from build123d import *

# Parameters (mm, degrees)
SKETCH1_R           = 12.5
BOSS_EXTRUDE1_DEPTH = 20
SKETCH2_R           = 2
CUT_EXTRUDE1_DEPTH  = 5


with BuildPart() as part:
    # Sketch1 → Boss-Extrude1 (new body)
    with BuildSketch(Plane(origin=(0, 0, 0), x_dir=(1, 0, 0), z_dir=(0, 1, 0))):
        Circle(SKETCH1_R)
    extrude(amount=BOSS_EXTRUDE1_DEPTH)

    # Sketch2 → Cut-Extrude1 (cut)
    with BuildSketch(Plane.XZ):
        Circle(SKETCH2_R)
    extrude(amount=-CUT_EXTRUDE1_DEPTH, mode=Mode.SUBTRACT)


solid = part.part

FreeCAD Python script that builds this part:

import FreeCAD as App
import Part
import Sketcher
from FreeCAD import Vector

doc = App.newDocument("Part")
params = doc.addObject("Spreadsheet::Sheet", "Params")
for row, (alias, value) in enumerate([
    ("sketch1_diameter", "25 mm"),
    ("pad1_length", "20 mm"),
    ("sketch2_diameter", "4 mm"),
    ("pocket1_length", "5 mm"),
], start=1):
    params.set(f"A{row}", alias)
    params.set(f"B{row}", "=" + value)
    params.setAlias(f"B{row}", alias)

body = doc.addObject("PartDesign::Body", "Body")

# Sketch on XZ plane
sketch1 = doc.addObject("Sketcher::SketchObject", "Sketch")
body.addObject(sketch1)
sketch1.AttachmentSupport = (doc.XZ_Plane, [""])
sketch1.MapMode = "FlatFace"
sketch1.addGeometry(Part.Circle(Vector(0, 0, 0), Vector(0, 0, 1), 12.5), False)
sketch1.addConstraint([
    Sketcher.Constraint("Coincident", 0, 3, -1, 1),
    Sketcher.Constraint("Diameter", 0, 25.0),
])
sketch1.setExpression("Constraints[1]", "Params.sketch1_diameter")
pad1 = doc.addObject("PartDesign::Pad", "Pad")
body.addObject(pad1)
pad1.Profile = sketch1
pad1.setExpression("Length", "Params.pad1_length")
pad1.Reversed = True

# Sketch on XZ plane
sketch2 = doc.addObject("Sketcher::SketchObject", "Sketch001")
body.addObject(sketch2)
sketch2.AttachmentSupport = (doc.XZ_Plane, [""])
sketch2.MapMode = "FlatFace"
sketch2.addGeometry(Part.Circle(Vector(0, 0, 0), Vector(0, 0, 1), 2), False)
sketch2.addConstraint([
    Sketcher.Constraint("Coincident", 0, 3, -1, 1),
    Sketcher.Constraint("Diameter", 0, 4.0),
])
sketch2.setExpression("Constraints[1]", "Params.sketch2_diameter")
pocket1 = doc.addObject("PartDesign::Pocket", "Pocket")
body.addObject(pocket1)
pocket1.Profile = sketch2
pocket1.setExpression("Length", "Params.pocket1_length")

doc.recompute()
